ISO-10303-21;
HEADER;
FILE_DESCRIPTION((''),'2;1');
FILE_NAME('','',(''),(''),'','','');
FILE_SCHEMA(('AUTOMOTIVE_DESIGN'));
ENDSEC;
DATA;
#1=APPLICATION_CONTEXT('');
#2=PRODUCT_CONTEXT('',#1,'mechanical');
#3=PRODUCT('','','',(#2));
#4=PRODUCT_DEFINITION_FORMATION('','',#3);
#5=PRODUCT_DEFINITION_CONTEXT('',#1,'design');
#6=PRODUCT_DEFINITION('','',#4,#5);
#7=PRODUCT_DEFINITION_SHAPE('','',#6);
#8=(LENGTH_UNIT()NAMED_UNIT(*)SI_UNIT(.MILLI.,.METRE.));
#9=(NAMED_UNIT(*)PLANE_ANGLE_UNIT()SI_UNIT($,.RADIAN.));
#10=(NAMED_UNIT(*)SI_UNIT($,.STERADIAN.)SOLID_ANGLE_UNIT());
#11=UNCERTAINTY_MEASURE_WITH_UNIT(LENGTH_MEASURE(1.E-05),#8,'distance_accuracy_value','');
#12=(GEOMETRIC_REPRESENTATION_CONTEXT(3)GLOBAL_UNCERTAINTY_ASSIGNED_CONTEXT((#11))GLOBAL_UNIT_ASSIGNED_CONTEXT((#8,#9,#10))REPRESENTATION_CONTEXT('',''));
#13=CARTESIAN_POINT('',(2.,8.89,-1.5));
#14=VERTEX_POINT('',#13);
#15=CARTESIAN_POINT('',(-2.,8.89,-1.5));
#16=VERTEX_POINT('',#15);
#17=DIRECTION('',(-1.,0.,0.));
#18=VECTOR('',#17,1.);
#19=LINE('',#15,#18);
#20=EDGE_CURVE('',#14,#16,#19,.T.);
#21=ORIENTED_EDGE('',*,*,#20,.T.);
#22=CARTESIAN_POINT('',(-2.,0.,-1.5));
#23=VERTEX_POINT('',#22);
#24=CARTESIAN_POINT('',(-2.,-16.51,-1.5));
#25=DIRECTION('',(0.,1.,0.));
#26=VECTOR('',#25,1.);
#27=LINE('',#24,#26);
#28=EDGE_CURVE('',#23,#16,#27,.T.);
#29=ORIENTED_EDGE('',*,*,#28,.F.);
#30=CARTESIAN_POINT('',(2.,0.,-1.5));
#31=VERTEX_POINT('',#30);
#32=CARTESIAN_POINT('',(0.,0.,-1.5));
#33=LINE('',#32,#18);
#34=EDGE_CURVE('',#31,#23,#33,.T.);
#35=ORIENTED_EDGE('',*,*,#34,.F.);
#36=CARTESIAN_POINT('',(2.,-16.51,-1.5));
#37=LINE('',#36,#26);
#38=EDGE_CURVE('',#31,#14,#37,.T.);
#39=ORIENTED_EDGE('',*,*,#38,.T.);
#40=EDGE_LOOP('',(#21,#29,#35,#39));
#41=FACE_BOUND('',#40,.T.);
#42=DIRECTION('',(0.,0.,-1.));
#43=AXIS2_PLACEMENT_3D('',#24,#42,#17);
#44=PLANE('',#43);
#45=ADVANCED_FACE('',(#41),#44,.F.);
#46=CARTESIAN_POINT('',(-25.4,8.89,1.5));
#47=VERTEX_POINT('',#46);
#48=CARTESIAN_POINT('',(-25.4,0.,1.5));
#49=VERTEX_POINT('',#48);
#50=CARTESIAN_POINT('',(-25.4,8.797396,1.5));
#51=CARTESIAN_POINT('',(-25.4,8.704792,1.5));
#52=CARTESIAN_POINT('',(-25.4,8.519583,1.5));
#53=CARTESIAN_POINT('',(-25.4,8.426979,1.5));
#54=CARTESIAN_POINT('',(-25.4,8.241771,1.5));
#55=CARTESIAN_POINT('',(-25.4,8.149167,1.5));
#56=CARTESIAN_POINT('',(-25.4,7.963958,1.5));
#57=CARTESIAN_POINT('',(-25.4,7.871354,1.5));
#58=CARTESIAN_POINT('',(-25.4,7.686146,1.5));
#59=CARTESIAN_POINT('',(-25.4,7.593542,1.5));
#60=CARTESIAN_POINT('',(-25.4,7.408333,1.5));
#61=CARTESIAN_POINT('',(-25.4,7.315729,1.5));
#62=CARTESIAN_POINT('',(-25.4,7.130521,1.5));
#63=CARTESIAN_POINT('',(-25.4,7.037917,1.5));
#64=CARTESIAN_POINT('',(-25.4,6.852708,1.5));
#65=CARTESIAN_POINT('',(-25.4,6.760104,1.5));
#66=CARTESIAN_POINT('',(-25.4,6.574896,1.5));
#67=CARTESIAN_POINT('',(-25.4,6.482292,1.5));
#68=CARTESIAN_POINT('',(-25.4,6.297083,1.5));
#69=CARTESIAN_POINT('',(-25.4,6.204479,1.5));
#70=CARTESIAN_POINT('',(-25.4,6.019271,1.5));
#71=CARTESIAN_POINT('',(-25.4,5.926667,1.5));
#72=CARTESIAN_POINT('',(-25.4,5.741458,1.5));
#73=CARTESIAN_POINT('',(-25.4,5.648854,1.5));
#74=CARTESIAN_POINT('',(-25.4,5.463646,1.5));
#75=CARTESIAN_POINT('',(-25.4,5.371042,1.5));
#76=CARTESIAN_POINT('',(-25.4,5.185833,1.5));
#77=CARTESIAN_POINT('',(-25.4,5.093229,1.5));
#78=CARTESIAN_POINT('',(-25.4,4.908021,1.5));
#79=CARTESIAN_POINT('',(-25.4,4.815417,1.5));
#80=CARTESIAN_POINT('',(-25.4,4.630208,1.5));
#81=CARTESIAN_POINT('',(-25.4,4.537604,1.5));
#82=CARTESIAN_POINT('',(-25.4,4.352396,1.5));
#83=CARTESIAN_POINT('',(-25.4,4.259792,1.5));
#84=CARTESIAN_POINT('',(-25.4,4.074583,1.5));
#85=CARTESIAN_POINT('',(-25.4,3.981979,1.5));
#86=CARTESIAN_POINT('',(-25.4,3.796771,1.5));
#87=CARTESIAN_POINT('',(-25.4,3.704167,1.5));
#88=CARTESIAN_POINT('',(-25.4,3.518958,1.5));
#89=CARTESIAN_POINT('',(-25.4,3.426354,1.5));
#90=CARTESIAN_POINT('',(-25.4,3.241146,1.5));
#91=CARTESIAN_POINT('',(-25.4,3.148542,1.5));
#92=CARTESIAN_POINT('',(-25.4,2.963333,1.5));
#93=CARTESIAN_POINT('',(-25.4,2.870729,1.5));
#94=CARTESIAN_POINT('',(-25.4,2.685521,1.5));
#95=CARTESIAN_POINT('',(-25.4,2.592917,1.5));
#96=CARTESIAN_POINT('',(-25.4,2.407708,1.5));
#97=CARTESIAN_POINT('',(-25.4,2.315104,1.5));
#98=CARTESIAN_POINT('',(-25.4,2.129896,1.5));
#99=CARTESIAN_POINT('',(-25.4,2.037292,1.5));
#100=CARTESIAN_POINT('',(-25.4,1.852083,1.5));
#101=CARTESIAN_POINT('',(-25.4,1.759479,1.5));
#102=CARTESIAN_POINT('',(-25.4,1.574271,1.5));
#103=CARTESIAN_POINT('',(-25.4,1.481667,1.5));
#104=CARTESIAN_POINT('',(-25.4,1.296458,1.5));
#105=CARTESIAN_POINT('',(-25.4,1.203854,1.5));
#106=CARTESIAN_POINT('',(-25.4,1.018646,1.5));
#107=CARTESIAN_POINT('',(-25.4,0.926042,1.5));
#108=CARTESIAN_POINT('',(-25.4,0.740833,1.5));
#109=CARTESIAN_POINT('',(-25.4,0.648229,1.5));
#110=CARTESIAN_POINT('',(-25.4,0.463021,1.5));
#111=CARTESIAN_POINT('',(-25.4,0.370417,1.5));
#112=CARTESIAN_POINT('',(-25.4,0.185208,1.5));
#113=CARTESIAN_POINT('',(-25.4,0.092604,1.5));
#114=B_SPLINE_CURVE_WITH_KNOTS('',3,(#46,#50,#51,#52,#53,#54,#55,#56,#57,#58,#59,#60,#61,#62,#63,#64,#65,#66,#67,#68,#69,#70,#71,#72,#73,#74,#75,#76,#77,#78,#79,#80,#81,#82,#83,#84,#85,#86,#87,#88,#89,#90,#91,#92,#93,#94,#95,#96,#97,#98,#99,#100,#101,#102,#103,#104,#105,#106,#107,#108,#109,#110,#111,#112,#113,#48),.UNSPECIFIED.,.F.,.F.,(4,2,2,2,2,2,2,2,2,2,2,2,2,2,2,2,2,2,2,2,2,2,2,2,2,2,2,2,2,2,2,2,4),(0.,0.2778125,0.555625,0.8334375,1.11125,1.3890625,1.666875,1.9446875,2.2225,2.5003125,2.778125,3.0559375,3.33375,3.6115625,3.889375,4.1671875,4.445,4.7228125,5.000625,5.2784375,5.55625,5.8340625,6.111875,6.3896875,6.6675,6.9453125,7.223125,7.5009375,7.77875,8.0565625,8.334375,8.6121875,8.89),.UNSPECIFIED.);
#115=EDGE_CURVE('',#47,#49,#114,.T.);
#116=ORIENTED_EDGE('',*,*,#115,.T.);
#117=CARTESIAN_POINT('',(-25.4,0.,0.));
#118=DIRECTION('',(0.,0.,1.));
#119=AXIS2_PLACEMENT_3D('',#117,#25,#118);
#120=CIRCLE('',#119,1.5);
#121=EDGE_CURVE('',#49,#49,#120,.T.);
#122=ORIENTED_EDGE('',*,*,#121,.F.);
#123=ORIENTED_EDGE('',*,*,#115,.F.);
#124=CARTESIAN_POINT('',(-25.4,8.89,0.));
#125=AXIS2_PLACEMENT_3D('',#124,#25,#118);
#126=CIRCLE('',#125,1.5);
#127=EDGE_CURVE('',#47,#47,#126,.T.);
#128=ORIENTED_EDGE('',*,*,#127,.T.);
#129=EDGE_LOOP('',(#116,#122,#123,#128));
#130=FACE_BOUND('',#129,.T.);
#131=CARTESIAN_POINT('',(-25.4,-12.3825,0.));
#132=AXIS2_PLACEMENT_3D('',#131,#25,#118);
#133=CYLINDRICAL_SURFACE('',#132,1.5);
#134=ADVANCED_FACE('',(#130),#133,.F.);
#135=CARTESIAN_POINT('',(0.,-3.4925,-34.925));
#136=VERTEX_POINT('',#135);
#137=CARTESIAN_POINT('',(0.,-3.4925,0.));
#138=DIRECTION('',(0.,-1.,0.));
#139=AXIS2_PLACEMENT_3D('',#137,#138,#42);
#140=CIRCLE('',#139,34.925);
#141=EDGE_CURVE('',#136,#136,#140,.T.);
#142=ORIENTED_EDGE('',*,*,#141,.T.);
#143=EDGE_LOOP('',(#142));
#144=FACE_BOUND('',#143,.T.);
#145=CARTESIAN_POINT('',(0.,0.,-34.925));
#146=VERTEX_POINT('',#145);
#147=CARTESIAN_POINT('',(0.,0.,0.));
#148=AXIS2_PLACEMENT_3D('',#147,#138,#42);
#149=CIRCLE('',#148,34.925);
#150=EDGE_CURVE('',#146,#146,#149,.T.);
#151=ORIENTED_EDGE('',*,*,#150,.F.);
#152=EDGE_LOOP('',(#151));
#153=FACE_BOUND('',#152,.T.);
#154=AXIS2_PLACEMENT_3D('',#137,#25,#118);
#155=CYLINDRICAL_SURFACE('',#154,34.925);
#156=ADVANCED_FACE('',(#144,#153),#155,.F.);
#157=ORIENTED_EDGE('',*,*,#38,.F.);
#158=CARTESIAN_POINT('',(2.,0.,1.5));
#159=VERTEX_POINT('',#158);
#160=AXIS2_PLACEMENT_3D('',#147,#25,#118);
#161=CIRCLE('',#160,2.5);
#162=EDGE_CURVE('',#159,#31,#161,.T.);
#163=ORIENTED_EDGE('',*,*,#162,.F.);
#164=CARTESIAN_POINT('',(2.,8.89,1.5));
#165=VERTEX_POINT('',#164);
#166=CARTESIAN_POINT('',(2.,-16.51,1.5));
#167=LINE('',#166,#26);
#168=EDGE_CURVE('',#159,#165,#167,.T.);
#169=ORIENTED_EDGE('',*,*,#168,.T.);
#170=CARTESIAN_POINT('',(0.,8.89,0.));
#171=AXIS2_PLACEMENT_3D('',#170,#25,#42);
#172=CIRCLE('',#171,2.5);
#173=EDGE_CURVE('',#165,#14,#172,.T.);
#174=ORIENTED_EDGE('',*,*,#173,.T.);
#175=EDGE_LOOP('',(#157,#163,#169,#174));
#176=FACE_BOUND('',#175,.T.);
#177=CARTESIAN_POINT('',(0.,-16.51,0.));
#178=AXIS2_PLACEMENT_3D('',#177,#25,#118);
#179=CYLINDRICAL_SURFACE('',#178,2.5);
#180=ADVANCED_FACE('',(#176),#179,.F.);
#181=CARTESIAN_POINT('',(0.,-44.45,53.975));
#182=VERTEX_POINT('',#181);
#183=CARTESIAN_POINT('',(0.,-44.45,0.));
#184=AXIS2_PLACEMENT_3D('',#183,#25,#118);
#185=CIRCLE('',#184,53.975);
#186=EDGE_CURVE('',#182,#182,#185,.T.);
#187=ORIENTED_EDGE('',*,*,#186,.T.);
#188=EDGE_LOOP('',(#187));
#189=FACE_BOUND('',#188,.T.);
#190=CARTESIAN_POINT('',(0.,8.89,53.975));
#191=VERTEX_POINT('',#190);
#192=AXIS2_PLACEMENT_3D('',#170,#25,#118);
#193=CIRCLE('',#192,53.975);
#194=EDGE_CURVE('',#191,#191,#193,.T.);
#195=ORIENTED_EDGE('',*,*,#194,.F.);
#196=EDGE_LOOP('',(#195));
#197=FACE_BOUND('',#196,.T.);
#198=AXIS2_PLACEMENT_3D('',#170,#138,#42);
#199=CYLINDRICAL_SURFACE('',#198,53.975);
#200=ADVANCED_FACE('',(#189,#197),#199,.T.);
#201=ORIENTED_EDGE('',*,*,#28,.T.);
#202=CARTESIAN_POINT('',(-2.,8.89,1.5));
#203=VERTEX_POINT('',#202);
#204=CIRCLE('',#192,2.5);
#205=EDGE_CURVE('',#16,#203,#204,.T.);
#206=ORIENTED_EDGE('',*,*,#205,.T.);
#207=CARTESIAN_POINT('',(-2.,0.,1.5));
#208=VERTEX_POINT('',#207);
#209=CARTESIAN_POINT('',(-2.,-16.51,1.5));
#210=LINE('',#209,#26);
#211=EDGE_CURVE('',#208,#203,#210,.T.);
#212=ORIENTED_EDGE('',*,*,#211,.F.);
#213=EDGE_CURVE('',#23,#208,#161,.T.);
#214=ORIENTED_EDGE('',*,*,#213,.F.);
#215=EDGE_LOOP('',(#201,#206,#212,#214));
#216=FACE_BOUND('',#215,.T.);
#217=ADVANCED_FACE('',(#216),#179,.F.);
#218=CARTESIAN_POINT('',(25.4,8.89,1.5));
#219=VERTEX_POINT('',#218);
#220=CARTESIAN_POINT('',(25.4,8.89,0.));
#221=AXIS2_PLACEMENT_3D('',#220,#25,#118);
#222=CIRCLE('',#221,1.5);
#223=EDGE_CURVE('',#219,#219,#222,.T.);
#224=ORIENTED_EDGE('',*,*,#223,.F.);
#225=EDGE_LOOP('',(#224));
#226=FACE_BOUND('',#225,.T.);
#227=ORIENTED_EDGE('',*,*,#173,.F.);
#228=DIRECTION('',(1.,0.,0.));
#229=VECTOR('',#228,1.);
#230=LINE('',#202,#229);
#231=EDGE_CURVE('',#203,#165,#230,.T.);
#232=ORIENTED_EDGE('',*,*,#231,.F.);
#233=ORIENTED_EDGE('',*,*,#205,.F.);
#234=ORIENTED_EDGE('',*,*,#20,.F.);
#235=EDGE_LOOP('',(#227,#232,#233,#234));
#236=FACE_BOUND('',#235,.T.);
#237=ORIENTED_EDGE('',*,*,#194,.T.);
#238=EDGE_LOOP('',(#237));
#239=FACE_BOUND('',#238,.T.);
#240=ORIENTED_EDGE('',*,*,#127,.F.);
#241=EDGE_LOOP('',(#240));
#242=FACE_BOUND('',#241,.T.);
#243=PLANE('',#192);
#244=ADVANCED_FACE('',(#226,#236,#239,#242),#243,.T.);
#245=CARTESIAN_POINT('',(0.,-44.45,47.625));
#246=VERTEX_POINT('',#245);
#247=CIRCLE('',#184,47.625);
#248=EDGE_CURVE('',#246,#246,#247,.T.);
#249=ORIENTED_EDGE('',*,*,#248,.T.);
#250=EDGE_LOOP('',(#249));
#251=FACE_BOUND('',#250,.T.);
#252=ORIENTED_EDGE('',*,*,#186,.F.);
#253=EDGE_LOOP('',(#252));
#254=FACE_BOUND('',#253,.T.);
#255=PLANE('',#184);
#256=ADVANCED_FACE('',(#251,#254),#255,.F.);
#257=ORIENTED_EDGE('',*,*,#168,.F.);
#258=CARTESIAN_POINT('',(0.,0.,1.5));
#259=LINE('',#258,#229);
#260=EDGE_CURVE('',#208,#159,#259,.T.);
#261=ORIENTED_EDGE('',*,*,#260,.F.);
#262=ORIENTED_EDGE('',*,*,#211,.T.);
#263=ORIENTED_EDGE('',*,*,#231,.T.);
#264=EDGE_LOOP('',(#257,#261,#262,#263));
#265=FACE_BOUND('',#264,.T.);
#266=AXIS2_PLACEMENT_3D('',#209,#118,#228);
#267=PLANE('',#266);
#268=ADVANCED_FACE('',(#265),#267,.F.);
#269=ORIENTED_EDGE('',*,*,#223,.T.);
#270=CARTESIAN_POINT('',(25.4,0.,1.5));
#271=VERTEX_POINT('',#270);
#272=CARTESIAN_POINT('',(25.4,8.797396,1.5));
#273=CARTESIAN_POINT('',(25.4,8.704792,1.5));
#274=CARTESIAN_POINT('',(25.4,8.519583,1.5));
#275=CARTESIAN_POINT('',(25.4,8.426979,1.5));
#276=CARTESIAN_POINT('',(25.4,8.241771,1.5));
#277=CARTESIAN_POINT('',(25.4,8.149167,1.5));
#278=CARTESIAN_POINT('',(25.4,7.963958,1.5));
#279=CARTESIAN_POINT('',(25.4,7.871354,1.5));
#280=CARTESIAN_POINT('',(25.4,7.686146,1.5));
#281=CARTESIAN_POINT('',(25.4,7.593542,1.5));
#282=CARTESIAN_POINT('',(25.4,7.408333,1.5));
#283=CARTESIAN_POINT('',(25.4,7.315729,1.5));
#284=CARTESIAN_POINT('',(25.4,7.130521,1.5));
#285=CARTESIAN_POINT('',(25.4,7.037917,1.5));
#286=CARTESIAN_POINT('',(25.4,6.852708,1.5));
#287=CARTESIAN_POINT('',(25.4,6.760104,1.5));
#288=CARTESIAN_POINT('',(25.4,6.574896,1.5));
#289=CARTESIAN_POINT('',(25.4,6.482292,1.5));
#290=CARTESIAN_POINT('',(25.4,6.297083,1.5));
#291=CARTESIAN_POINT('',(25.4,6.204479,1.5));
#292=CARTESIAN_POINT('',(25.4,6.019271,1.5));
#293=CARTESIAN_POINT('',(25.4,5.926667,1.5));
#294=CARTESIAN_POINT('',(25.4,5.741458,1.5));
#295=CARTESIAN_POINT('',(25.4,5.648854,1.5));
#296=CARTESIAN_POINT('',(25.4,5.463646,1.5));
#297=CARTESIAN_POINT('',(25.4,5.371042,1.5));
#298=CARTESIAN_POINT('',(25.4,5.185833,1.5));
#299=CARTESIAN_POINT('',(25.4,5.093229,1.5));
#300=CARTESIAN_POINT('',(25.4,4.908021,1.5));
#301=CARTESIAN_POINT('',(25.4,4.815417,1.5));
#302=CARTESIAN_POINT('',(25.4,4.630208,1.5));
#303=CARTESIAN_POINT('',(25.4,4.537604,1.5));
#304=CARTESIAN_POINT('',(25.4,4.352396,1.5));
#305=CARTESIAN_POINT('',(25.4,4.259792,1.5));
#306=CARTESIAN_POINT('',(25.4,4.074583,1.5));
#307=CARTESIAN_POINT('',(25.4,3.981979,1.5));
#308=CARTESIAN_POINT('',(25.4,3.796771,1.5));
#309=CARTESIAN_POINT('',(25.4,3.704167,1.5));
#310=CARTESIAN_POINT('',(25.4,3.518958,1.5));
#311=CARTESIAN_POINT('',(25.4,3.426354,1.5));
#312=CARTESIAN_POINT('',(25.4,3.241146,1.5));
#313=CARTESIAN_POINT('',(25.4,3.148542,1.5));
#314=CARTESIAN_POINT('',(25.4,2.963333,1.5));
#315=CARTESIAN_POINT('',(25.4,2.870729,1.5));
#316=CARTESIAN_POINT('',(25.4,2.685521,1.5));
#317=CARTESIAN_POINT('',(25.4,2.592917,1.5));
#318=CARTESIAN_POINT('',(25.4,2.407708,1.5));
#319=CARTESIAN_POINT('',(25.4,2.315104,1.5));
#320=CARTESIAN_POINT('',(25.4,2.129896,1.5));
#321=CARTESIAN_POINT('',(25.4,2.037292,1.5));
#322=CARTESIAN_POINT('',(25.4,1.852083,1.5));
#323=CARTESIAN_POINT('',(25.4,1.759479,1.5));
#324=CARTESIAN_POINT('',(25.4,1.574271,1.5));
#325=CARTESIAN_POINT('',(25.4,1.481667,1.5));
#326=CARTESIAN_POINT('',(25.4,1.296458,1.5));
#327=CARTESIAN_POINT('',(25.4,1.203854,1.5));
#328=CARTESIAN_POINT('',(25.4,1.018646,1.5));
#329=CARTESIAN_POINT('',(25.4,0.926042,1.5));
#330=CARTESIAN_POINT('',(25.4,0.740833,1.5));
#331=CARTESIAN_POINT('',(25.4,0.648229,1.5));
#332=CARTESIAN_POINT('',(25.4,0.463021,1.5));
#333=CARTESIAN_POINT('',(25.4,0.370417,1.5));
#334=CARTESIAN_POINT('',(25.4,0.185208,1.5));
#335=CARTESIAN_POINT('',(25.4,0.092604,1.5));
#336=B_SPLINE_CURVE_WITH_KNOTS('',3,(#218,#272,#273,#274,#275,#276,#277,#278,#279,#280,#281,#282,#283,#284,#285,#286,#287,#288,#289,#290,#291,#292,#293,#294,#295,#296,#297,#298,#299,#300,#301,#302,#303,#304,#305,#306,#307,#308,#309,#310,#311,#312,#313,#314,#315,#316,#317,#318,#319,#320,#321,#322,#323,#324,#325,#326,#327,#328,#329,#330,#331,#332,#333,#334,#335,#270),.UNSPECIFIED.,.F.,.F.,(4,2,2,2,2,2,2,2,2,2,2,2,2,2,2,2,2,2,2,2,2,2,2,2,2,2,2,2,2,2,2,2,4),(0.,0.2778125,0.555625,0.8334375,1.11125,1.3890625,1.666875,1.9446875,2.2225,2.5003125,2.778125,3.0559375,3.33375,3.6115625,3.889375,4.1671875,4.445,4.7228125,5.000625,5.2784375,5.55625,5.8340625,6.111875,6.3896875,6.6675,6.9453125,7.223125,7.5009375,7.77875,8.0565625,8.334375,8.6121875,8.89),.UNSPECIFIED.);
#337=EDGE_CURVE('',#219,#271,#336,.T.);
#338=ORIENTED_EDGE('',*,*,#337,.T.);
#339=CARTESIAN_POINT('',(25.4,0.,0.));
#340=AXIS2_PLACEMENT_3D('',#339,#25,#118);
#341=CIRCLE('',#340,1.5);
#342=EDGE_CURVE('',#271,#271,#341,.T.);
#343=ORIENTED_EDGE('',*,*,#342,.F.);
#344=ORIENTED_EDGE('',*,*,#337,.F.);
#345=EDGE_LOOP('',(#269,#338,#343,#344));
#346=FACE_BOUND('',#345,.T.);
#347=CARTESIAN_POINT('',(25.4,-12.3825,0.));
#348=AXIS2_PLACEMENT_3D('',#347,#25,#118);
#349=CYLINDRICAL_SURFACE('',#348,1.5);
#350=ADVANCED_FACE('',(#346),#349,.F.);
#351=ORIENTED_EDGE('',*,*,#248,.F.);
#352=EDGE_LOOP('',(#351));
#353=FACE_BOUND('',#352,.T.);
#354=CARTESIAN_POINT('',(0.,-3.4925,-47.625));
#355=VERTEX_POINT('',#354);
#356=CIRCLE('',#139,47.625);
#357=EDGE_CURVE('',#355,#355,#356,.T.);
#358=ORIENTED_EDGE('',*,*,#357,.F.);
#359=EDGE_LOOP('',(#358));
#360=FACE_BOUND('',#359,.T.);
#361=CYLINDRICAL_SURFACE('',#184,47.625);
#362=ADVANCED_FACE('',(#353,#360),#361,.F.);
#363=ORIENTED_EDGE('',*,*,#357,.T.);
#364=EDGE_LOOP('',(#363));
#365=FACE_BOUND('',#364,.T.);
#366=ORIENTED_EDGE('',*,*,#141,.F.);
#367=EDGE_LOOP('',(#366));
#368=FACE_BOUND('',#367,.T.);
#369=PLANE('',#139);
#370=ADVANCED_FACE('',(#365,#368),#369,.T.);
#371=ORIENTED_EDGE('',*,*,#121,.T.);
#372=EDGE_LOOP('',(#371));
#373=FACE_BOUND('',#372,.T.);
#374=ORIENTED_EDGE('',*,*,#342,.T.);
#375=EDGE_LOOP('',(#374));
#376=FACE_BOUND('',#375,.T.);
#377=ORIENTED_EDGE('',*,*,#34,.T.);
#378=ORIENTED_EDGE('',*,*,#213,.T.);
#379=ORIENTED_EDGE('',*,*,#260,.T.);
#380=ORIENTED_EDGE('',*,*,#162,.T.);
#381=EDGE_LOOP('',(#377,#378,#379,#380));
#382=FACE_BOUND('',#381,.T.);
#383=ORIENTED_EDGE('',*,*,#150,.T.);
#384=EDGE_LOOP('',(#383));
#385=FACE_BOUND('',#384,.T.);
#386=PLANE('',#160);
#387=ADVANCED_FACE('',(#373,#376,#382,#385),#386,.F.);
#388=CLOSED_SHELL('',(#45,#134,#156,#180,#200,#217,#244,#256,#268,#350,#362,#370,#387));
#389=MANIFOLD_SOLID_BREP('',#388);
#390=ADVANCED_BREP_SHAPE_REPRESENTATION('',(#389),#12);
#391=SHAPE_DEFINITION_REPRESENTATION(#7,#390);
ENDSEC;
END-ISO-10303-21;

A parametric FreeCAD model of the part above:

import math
import FreeCAD as App
import Part
import Sketcher

V = App.Vector
Q = App.Units.Quantity

doc = App.newDocument("Part")
body = doc.addObject("PartDesign::Body", "Body")

# Sketch on XZ plane
sketch1 = body.newObject("Sketcher::SketchObject", "Sketch")
sketch1.AttachmentSupport = (doc.getObject("XZ_Plane"), [""])
sketch1.MapMode = "FlatFace"
sketch1.addGeometry(Part.Circle(V(0, 0, 0), V(0, 0, 1), 54), False)
sketch1.addConstraint(Sketcher.Constraint("Coincident", 0, 3, -1, 1))
sketch1.addConstraint(Sketcher.Constraint("Diameter", 0, Q("4.25 in")))
pad1 = body.newObject("PartDesign::Pad", "Pad")
pad1.Profile = sketch1
pad1.Length = Q("0.35 in")
pad1.Reversed = True

# Sketch on XZ plane
sketch2 = body.newObject("Sketcher::SketchObject", "Sketch001")
sketch2.AttachmentSupport = (doc.getObject("XZ_Plane"), [""])
sketch2.MapMode = "FlatFace"
sketch2.AttachmentOffset = App.Placement(V(0, 0, 1.75 * 25.4), App.Rotation())
sketch2.addGeometry(Part.Circle(V(0, 0, 0), V(0, 0, 1), 54), False)
sketch2.addGeometry(Part.Circle(V(0, 0, 0), V(0, 0, 1), 48), False)
sketch2.addConstraint(Sketcher.Constraint("Coincident", 0, 3, -1, 1))
sketch2.addConstraint(Sketcher.Constraint("Coincident", 1, 3, -1, 1))
sketch2.addConstraint(Sketcher.Constraint("Diameter", 0, Q("4.25 in")))
sketch2.addConstraint(Sketcher.Constraint("Diameter", 1, Q("3.75 in")))
pad2 = body.newObject("PartDesign::Pad", "Pad001")
pad2.Profile = sketch2
pad2.Length = Q("1.75 in")
pad2.Reversed = True

# Sketch on XZ plane
sketch3 = body.newObject("Sketcher::SketchObject", "Sketch002")
sketch3.AttachmentSupport = (doc.getObject("XZ_Plane"), [""])
sketch3.MapMode = "FlatFace"
sketch3.AttachmentOffset = App.Placement(V(0, 0, -0.35 * 25.4), App.Rotation())
sketch3.addGeometry(Part.LineSegment(V(2, -1.5, 0), V(-2, -1.5, 0)), False)
sketch3.addGeometry(Part.ArcOfCircle(Part.Circle(V(0, 0, 0), V(0, 0, 1), 2.5), math.radians(143), math.radians(217)), False)
sketch3.addGeometry(Part.LineSegment(V(-2, 1.5, 0), V(2, 1.5, 0)), False)
sketch3.addGeometry(Part.ArcOfCircle(Part.Circle(V(0, 0, 0), V(0, 0, 1), 2.5), math.radians(-37), math.radians(37)), False)
sketch3.addConstraint(Sketcher.Constraint("Coincident", 0, 2, 1, 2))
sketch3.addConstraint(Sketcher.Constraint("Coincident", 1, 1, 2, 1))
sketch3.addConstraint(Sketcher.Constraint("Coincident", 2, 2, 3, 2))
sketch3.addConstraint(Sketcher.Constraint("Coincident", 3, 1, 0, 1))
sketch3.addConstraint(Sketcher.Constraint("Horizontal", 0))
sketch3.addConstraint(Sketcher.Constraint("Horizontal", 2))
sketch3.addConstraint(Sketcher.Constraint("Coincident", 1, 3, -1, 1))
sketch3.addConstraint(Sketcher.Constraint("Coincident", 3, 3, -1, 1))
sketch3.addConstraint(Sketcher.Constraint("Equal", 1, 3))
sketch3.addConstraint(Sketcher.Constraint("Vertical", 0, 2, 1, 1))
sketch3.addConstraint(Sketcher.Constraint("Radius", 1, 2.5))
sketch3.addConstraint(Sketcher.Constraint("DistanceX", 0, 2, 0, 1, 4.0))
pocket1 = body.newObject("PartDesign::Pocket", "Pocket")
pocket1.Profile = sketch3
pocket1.Length = Q("1 in")
pocket1.Reversed = True

# Sketch on XZ plane
sketch4 = body.newObject("Sketcher::SketchObject", "Sketch003")
sketch4.AttachmentSupport = (doc.getObject("XZ_Plane"), [""])
sketch4.MapMode = "FlatFace"
sketch4.AttachmentOffset = App.Placement(V(0, 0, 0.1375 * 25.4), App.Rotation())
sketch4.addGeometry(Part.Circle(V(0, 0, 0), V(0, 0, 1), 48), False)
sketch4.addGeometry(Part.Circle(V(0, 0, 0), V(0, 0, 1), 35), False)
sketch4.addConstraint(Sketcher.Constraint("Coincident", 0, 3, -1, 1))
sketch4.addConstraint(Sketcher.Constraint("Coincident", 1, 3, -1, 1))
sketch4.addConstraint(Sketcher.Constraint("Diameter", 0, Q("3.75 in")))
sketch4.addConstraint(Sketcher.Constraint("Diameter", 1, Q("2.75 in")))
pad3 = body.newObject("PartDesign::Pad", "Pad002")
pad3.Profile = sketch4
pad3.Length = Q("0.1375 in")
pad3.Reversed = True

# Sketch on XZ plane
sketch5 = body.newObject("Sketcher::SketchObject", "Sketch004")
sketch5.AttachmentSupport = (doc.getObject("XZ_Plane"), [""])
sketch5.MapMode = "FlatFace"
sketch5.AttachmentOffset = App.Placement(V(0, 0, -0.35 * 25.4), App.Rotation())
sketch5.addGeometry(Part.Circle(V(25.4, 0, 0), V(0, 0, 1), 1.5), False)
sketch5.addGeometry(Part.Circle(V(-25.4, 0, 0), V(0, 0, 1), 1.5), False)
sketch5.addConstraint(Sketcher.Constraint("Equal", 0, 1))
sketch5.addConstraint(Sketcher.Constraint("Symmetric", 0, 3, 1, 3, -1, 1))
sketch5.addConstraint(Sketcher.Constraint("PointOnObject", 0, 3, -1))
sketch5.addConstraint(Sketcher.Constraint("DistanceX", -1, 1, 0, 3, Q("1 in")))
sketch5.addConstraint(Sketcher.Constraint("Diameter", 0, 3.0))
pocket2 = body.newObject("PartDesign::Pocket", "Pocket001")
pocket2.Profile = sketch5
pocket2.Length = Q("0.8375 in")
pocket2.Reversed = True

doc.recompute()
